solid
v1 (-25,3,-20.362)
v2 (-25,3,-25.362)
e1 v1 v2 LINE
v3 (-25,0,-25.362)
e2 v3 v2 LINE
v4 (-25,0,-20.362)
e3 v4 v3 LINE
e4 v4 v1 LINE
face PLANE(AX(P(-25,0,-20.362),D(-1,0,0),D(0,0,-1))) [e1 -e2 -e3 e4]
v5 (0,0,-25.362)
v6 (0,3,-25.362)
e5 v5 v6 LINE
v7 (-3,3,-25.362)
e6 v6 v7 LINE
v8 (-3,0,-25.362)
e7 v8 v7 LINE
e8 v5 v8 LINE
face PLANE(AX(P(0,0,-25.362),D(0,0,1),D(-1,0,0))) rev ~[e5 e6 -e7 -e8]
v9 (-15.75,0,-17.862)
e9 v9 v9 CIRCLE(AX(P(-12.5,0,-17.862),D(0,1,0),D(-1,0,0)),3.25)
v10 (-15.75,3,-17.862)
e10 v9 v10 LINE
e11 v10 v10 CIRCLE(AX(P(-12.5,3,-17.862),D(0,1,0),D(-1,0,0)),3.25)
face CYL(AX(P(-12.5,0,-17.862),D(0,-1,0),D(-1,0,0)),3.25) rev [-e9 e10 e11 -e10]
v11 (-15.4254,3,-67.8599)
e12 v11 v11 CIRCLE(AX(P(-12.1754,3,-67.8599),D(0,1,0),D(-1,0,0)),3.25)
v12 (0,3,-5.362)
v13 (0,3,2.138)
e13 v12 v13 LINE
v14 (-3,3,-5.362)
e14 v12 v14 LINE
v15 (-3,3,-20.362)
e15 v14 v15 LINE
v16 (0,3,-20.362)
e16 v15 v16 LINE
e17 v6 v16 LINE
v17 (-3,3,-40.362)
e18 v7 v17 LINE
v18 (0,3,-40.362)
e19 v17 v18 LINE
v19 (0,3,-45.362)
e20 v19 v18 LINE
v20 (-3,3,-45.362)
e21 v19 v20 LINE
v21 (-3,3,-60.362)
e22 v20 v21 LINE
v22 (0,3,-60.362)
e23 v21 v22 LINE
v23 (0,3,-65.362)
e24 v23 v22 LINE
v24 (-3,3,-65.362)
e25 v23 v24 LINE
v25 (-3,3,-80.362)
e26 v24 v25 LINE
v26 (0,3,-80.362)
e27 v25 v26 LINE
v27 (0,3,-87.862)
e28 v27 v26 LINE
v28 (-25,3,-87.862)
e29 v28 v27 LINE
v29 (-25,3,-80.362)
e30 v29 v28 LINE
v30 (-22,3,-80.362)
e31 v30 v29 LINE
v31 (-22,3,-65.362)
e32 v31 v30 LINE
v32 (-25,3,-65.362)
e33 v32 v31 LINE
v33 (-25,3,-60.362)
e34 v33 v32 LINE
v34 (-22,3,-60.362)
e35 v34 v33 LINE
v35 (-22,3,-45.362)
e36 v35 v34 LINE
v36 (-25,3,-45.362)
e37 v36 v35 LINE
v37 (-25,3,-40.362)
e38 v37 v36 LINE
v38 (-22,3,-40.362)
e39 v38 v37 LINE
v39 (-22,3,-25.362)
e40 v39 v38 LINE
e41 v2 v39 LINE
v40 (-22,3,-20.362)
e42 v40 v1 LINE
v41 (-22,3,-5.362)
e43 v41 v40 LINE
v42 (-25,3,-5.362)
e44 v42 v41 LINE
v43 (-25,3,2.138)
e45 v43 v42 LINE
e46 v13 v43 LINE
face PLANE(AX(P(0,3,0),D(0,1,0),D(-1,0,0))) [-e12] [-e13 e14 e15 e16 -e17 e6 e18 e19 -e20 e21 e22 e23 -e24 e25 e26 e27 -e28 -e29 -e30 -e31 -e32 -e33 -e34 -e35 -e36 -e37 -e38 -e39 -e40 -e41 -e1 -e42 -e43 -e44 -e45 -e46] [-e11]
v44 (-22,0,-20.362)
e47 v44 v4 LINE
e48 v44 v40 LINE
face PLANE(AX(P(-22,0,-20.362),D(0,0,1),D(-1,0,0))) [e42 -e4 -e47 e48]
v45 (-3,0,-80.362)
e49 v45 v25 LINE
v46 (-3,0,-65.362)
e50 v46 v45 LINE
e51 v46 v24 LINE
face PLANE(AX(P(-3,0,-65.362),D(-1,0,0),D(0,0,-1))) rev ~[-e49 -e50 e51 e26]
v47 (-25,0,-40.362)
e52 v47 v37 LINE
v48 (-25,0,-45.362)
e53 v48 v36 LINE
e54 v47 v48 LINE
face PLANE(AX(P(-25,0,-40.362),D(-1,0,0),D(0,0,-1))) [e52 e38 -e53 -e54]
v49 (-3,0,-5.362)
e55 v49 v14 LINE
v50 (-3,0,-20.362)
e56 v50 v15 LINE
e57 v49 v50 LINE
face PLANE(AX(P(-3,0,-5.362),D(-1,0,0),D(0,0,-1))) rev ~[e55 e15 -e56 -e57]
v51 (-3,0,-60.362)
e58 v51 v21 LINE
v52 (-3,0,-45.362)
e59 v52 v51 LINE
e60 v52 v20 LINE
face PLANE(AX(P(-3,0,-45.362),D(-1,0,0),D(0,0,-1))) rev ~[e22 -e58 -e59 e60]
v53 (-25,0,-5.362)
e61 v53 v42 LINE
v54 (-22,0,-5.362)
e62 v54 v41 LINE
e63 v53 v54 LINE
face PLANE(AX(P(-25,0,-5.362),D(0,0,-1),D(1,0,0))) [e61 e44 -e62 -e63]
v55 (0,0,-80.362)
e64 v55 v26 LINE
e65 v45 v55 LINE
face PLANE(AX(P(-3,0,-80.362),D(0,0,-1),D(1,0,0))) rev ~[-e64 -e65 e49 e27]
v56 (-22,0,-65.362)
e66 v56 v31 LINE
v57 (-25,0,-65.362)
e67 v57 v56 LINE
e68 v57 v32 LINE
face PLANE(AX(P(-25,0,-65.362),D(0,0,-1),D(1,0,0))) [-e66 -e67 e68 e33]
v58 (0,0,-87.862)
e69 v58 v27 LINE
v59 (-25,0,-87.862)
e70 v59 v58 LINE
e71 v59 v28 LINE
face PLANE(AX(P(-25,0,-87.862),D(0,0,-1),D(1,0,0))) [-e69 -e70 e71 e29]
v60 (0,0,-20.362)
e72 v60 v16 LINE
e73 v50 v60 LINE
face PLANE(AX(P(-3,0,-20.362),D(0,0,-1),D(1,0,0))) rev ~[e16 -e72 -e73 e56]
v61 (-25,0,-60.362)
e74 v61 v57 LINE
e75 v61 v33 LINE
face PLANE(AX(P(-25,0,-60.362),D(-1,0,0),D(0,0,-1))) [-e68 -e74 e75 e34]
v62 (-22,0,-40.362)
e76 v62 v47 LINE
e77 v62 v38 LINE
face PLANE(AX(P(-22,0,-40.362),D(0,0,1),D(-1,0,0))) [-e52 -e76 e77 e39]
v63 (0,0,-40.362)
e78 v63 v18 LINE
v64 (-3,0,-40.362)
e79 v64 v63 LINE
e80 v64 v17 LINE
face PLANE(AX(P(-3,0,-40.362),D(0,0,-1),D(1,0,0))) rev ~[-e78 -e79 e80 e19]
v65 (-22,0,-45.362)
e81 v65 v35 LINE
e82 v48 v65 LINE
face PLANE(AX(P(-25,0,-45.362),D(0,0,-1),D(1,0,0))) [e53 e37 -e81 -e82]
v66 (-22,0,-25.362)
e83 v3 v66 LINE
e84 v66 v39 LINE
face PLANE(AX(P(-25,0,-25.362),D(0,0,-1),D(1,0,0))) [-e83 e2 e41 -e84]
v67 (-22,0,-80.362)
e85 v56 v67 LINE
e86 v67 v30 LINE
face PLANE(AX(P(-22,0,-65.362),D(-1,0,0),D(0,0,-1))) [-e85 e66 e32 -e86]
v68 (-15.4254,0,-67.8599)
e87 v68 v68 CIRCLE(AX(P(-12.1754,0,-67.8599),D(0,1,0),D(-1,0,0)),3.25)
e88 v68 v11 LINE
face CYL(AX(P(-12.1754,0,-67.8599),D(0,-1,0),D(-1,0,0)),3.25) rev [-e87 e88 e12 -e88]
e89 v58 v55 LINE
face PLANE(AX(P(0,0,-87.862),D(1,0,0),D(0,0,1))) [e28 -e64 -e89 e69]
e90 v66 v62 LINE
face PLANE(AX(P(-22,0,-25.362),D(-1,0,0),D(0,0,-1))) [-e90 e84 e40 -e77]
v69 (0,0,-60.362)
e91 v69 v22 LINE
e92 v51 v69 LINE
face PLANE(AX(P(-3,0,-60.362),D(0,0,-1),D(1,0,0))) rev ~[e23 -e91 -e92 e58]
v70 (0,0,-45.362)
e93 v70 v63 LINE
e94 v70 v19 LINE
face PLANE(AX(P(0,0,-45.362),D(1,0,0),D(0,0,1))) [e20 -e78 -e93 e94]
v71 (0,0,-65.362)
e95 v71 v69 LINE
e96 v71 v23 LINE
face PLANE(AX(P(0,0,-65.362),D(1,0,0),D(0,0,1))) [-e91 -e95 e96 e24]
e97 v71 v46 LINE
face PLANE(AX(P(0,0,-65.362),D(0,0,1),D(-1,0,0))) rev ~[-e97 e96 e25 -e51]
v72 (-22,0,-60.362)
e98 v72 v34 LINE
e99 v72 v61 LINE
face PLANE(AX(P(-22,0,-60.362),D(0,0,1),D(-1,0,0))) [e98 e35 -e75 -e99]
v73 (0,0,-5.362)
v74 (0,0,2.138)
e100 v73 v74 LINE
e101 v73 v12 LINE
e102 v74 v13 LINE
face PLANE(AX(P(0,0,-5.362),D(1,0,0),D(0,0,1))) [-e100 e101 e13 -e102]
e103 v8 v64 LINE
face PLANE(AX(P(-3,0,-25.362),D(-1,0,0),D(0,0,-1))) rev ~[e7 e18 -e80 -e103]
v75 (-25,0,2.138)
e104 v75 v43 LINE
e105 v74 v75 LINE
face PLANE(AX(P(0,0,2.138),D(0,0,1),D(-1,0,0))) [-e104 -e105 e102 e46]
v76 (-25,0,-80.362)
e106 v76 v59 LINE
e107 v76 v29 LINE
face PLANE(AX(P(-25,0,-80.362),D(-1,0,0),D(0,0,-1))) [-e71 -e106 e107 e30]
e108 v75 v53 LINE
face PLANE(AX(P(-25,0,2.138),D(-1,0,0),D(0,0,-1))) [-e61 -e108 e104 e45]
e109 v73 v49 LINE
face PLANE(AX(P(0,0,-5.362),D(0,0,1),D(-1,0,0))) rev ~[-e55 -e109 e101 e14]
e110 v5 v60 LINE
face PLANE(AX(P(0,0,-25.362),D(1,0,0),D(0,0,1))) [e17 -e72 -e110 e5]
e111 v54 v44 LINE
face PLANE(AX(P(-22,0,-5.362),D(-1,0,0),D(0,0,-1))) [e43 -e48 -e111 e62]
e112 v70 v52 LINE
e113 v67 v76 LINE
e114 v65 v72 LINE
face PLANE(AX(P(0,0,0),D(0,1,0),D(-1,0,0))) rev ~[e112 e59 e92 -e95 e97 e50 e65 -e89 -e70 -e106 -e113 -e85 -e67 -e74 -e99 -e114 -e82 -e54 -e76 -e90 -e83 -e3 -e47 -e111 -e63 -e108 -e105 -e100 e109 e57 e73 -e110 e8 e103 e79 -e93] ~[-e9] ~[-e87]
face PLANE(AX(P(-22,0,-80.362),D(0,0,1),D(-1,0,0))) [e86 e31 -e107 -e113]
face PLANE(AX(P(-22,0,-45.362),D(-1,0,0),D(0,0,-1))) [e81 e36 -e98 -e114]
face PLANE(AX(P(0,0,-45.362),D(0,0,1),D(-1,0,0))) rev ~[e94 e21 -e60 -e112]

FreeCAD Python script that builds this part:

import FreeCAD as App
import Part
import Sketcher
Q = App.Units.Quantity


def add_polygon(sketch, points):
    """Adds a closed chain of lines whose ends are joined by coincident constraints."""
    first, n = sketch.GeometryCount, len(points)
    for a, b in zip(points, points[1:] + points[:1]):
        sketch.addGeometry(Part.LineSegment(App.Vector(*a, 0), App.Vector(*b, 0)), False)
    for i in range(n):
        sketch.addConstraint(Sketcher.Constraint("Coincident", first + i, 2, first + (i + 1) % n, 1))

doc = App.newDocument("Part")
body = doc.addObject("PartDesign::Body", "Body")

# Sketch on XZ plane
sketch1 = body.newObject("Sketcher::SketchObject", "Sketch")
sketch1.AttachmentSupport = (doc.getObject("XZ_Plane"), [""])
sketch1.MapMode = "FlatFace"
add_polygon(sketch1, [(-25, 2.1), (0, 2.1), (0, -5.4), (-3, -5.4), (-3, -20.4), (0, -20.4), (0, -25.4), (-3, -25.4), (-3, -40.4), (0, -40.4), (0, -45.4), (-3, -45.4), (-3, -60.4), (0, -60.4), (0, -65.4), (-3, -65.4), (-3, -80.4), (0, -80.4), (0, -87.9), (-25, -87.9), (-25, -80.4), (-22, -80.4), (-22, -65.4), (-25, -65.4), (-25, -60.4), (-22, -60.4), (-22, -45.4), (-25, -45.4), (-25, -40.4), (-22, -40.4), (-22, -25.4), (-25, -25.4), (-25, -20.4), (-22, -20.4), (-22, -5.4), (-25, -5.4)])  # lines 0-35
sketch1.addGeometry(Part.Circle(App.Vector(-12.2, -67.9, 0), App.Vector(0, 0, 1), 3.2), False)  # 36
sketch1.addGeometry(Part.Circle(App.Vector(-12.5, -17.9, 0), App.Vector(0, 0, 1), 3.2), False)  # 37
sketch1.addConstraint([
    Sketcher.Constraint("Horizontal", 0),
    Sketcher.Constraint("Vertical", 1),
    Sketcher.Constraint("Horizontal", 2),
    Sketcher.Constraint("Vertical", 3),
    Sketcher.Constraint("Horizontal", 4),
    Sketcher.Constraint("Vertical", 5),
    Sketcher.Constraint("Horizontal", 6),
    Sketcher.Constraint("Vertical", 7),
    Sketcher.Constraint("Horizontal", 8),
    Sketcher.Constraint("Vertical", 9),
    Sketcher.Constraint("Horizontal", 10),
    Sketcher.Constraint("Vertical", 11),
    Sketcher.Constraint("Horizontal", 12),
    Sketcher.Constraint("Vertical", 13),
    Sketcher.Constraint("Horizontal", 14),
    Sketcher.Constraint("Vertical", 15),
    Sketcher.Constraint("Horizontal", 16),
    Sketcher.Constraint("Vertical", 17),
    Sketcher.Constraint("Horizontal", 18),
    Sketcher.Constraint("Vertical", 19),
    Sketcher.Constraint("Horizontal", 20),
    Sketcher.Constraint("Vertical", 21),
    Sketcher.Constraint("Horizontal", 22),
    Sketcher.Constraint("Vertical", 23),
    Sketcher.Constraint("Horizontal", 24),
    Sketcher.Constraint("Vertical", 25),
    Sketcher.Constraint("Horizontal", 26),
    Sketcher.Constraint("Vertical", 27),
    Sketcher.Constraint("Horizontal", 28),
    Sketcher.Constraint("Vertical", 29),
    Sketcher.Constraint("Horizontal", 30),
    Sketcher.Constraint("Vertical", 31),
    Sketcher.Constraint("Horizontal", 32),
    Sketcher.Constraint("Vertical", 33),
    Sketcher.Constraint("Horizontal", 34),
    Sketcher.Constraint("Vertical", 35),
    Sketcher.Constraint("Equal", 36, 37),
    Sketcher.Constraint("PointOnObject", 0, 2, -2),
    Sketcher.Constraint("PointOnObject", 4, 2, -2),
    Sketcher.Constraint("PointOnObject", 8, 2, -2),
    Sketcher.Constraint("PointOnObject", 12, 2, -2),
    Sketcher.Constraint("PointOnObject", 16, 2, -2),
    Sketcher.Constraint("Horizontal", 16, 2, 19, 2),
    Sketcher.Constraint("Horizontal", 14, 2, 21, 2),
    Sketcher.Constraint("Horizontal", 12, 2, 23, 2),
    Sketcher.Constraint("Horizontal", 10, 2, 25, 2),
    Sketcher.Constraint("Horizontal", 8, 2, 27, 2),
    Sketcher.Constraint("Horizontal", 6, 2, 29, 2),
    Sketcher.Constraint("Horizontal", 4, 2, 31, 2),
    Sketcher.Constraint("Horizontal", 2, 2, 33, 2),
    Sketcher.Constraint("Vertical", 3, 2, 6, 2),
    Sketcher.Constraint("Vertical", 7, 2, 10, 2),
    Sketcher.Constraint("Vertical", 11, 2, 14, 2),
    Sketcher.Constraint("Vertical", 19, 2, 22, 2),
    Sketcher.Constraint("Vertical", 21, 2, 24, 2),
    Sketcher.Constraint("Vertical", 23, 2, 26, 2),
    Sketcher.Constraint("Vertical", 25, 2, 28, 2),
    Sketcher.Constraint("Vertical", 27, 2, 30, 2),
    Sketcher.Constraint("Vertical", 29, 2, 32, 2),
    Sketcher.Constraint("Vertical", 31, 2, 34, 2),
    Sketcher.Constraint("Equal", 16, 20),
    Sketcher.Constraint("Equal", 3, 7),
    Sketcher.Constraint("Equal", 5, 9),
    Sketcher.Constraint("Equal", 7, 11),
    Sketcher.Constraint("Equal", 9, 13),
    Sketcher.Constraint("Equal", 11, 15),
    Sketcher.Constraint("Equal", 1, 17),
    Sketcher.Constraint("Diameter", 36, Q("6.5 mm")),
    Sketcher.Constraint("DistanceX", 0, 1, 0, 2, Q("25 mm")),
    Sketcher.Constraint("DistanceX", 2, 2, 2, 1, Q("3 mm")),
    Sketcher.Constraint("DistanceY", 3, 2, 3, 1, Q("15 mm")),
    Sketcher.Constraint("DistanceY", 1, 2, 1, 1, Q("7.5 mm")),
    Sketcher.Constraint("DistanceY", 37, 3, 0, 2, Q("20 mm")),
    Sketcher.Constraint("DistanceY", 5, 2, 1, 2, Q("20 mm")),
    Sketcher.Constraint("DistanceX", 37, 3, -1, 1, Q("12.5 mm")),
    Sketcher.Constraint("DistanceY", 36, 3, -1, 1, Q("67.86 mm")),
    Sketcher.Constraint("DistanceY", 37, 3, -1, 1, Q("17.862 mm")),
    Sketcher.Constraint("DistanceX", 36, 3, -1, 1, Q("12.1754 mm")),
])
pad1 = body.newObject("PartDesign::Pad", "Pad")
pad1.Profile = sketch1
pad1.Length = 3
pad1.Reversed = True

doc.recompute()
